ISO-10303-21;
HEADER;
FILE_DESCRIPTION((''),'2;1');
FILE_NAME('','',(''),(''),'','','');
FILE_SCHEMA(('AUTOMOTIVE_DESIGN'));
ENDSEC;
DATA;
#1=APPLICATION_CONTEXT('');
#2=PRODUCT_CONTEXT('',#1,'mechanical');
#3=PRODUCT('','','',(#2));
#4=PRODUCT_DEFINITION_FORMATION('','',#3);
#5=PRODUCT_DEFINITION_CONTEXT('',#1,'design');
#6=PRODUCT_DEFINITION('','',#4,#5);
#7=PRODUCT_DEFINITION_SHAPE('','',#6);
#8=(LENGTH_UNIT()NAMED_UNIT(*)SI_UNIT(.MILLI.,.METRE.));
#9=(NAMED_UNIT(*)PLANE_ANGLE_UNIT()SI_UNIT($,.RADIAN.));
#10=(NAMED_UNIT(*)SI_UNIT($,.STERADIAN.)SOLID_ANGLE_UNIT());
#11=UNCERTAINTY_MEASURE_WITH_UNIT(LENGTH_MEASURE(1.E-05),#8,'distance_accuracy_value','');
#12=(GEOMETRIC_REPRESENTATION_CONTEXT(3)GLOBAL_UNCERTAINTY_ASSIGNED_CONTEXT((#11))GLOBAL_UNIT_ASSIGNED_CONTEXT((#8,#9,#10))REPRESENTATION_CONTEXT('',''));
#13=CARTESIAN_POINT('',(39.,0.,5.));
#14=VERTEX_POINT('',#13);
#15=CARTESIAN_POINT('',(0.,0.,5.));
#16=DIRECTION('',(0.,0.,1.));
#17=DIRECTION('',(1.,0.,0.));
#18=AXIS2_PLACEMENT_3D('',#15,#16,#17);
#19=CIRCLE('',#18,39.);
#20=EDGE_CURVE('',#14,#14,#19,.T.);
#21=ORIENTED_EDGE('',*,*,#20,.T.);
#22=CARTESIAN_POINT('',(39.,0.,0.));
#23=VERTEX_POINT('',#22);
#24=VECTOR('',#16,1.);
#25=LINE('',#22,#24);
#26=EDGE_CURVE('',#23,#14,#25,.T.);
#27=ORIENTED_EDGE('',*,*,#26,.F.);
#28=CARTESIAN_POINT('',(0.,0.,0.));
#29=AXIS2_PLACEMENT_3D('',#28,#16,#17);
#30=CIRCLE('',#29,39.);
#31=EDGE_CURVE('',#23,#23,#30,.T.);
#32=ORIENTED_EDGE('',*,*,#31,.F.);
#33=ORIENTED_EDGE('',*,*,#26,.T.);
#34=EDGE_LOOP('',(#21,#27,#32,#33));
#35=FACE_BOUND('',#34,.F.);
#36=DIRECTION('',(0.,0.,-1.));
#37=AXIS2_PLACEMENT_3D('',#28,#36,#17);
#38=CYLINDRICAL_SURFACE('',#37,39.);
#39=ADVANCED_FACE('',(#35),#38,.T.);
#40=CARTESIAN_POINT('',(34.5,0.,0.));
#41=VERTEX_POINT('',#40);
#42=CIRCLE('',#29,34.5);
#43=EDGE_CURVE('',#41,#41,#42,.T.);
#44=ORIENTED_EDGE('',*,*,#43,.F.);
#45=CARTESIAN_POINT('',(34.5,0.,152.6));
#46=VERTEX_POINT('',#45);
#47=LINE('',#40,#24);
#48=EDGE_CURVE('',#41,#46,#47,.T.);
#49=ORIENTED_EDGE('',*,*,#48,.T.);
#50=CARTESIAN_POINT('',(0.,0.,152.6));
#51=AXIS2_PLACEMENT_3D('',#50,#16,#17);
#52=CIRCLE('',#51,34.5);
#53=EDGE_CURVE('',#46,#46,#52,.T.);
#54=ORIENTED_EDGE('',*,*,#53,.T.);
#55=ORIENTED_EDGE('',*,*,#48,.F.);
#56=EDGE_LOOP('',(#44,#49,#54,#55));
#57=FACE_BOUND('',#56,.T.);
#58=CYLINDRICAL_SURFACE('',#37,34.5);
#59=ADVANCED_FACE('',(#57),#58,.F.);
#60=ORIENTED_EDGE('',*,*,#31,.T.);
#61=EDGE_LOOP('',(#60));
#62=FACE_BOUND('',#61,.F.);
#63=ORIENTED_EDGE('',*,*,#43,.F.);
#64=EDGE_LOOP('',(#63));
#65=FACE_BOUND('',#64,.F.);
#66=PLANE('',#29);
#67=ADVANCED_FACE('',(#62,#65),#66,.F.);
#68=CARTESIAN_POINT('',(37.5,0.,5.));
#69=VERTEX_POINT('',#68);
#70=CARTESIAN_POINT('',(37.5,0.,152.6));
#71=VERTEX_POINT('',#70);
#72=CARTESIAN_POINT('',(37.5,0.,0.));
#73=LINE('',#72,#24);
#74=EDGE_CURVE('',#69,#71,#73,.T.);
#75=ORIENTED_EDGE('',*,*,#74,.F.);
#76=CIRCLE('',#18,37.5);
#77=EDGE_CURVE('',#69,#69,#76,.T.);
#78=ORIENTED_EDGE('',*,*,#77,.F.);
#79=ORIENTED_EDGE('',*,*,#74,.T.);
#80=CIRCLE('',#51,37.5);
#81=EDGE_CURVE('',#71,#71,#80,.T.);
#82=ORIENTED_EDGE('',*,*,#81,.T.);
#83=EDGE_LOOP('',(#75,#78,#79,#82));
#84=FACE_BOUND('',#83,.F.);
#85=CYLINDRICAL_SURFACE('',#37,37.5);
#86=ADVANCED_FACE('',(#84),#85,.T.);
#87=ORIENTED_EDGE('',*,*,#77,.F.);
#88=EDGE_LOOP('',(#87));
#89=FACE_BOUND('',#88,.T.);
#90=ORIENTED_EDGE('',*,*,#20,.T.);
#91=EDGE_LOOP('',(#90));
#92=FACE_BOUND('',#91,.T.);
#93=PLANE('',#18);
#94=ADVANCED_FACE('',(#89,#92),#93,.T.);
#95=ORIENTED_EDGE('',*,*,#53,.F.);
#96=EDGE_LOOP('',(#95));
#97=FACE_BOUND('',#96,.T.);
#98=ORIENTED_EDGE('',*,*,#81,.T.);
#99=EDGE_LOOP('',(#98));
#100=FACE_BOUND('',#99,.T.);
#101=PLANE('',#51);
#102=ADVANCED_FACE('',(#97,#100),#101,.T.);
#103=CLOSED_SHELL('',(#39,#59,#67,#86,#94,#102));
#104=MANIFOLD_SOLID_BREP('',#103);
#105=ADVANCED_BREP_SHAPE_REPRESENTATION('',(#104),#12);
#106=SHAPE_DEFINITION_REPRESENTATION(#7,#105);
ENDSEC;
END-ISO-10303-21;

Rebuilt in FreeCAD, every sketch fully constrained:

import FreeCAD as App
import Part
import Sketcher
from FreeCAD import Vector


def faces_at(feature, points):
    """Names of the faces that lie closest to the given points."""
    faces = feature.Shape.Faces
    near = lambda p: min(range(len(faces)), key=lambda i: faces[i].distToShape(Part.Vertex(*p))[0])
    return sorted({f"Face{near(p) + 1}" for p in points})

doc = App.newDocument("Part")
body = doc.addObject("PartDesign::Body", "Body")

sketch1 = body.newObject("Sketcher::SketchObject", "Sketch")
sketch1.AttachmentSupport = (doc.getObject("XY_Plane"), [""])
sketch1.MapMode = "FlatFace"
sketch1.addGeometry(Part.Circle(Vector(0, 0, 0), Vector(0, 0, 1), 38), False)
sketch1.addConstraint(Sketcher.Constraint("Coincident", 0, 3, -1, 1))
sketch1.addConstraint(Sketcher.Constraint("Diameter", 0, 75.0))
pad1 = body.newObject("PartDesign::Pad", "Pad")
pad1.Profile = sketch1
pad1.Length = 152.6
doc.recompute()

thickness = body.newObject("PartDesign::Thickness", "Thickness")
thickness.Base = (pad1, faces_at(pad1, [(0, 0, 152.6), (0, 0, 0)]))
thickness.Value = 3
thickness.Reversed = True
thickness.Join = "Arc"

sketch2 = body.newObject("Sketcher::SketchObject", "Sketch001")
sketch2.AttachmentSupport = (doc.getObject("XY_Plane"), [""])
sketch2.MapMode = "FlatFace"
sketch2.addGeometry(Part.Circle(Vector(0, 0, 0), Vector(0, 0, 1), 39), False)
sketch2.addGeometry(Part.Circle(Vector(0, 0, 0), Vector(0, 0, 1), 38), False)
sketch2.addConstraint(Sketcher.Constraint("Coincident", 0, 3, -1, 1))
sketch2.addConstraint(Sketcher.Constraint("Coincident", 1, 3, -1, 1))
sketch2.addConstraint(Sketcher.Constraint("Diameter", 0, 78.0))
sketch2.addConstraint(Sketcher.Constraint("Diameter", 1, 75.0))
pad2 = body.newObject("PartDesign::Pad", "Pad001")
pad2.Profile = sketch2
pad2.Length = 5

doc.recompute()
